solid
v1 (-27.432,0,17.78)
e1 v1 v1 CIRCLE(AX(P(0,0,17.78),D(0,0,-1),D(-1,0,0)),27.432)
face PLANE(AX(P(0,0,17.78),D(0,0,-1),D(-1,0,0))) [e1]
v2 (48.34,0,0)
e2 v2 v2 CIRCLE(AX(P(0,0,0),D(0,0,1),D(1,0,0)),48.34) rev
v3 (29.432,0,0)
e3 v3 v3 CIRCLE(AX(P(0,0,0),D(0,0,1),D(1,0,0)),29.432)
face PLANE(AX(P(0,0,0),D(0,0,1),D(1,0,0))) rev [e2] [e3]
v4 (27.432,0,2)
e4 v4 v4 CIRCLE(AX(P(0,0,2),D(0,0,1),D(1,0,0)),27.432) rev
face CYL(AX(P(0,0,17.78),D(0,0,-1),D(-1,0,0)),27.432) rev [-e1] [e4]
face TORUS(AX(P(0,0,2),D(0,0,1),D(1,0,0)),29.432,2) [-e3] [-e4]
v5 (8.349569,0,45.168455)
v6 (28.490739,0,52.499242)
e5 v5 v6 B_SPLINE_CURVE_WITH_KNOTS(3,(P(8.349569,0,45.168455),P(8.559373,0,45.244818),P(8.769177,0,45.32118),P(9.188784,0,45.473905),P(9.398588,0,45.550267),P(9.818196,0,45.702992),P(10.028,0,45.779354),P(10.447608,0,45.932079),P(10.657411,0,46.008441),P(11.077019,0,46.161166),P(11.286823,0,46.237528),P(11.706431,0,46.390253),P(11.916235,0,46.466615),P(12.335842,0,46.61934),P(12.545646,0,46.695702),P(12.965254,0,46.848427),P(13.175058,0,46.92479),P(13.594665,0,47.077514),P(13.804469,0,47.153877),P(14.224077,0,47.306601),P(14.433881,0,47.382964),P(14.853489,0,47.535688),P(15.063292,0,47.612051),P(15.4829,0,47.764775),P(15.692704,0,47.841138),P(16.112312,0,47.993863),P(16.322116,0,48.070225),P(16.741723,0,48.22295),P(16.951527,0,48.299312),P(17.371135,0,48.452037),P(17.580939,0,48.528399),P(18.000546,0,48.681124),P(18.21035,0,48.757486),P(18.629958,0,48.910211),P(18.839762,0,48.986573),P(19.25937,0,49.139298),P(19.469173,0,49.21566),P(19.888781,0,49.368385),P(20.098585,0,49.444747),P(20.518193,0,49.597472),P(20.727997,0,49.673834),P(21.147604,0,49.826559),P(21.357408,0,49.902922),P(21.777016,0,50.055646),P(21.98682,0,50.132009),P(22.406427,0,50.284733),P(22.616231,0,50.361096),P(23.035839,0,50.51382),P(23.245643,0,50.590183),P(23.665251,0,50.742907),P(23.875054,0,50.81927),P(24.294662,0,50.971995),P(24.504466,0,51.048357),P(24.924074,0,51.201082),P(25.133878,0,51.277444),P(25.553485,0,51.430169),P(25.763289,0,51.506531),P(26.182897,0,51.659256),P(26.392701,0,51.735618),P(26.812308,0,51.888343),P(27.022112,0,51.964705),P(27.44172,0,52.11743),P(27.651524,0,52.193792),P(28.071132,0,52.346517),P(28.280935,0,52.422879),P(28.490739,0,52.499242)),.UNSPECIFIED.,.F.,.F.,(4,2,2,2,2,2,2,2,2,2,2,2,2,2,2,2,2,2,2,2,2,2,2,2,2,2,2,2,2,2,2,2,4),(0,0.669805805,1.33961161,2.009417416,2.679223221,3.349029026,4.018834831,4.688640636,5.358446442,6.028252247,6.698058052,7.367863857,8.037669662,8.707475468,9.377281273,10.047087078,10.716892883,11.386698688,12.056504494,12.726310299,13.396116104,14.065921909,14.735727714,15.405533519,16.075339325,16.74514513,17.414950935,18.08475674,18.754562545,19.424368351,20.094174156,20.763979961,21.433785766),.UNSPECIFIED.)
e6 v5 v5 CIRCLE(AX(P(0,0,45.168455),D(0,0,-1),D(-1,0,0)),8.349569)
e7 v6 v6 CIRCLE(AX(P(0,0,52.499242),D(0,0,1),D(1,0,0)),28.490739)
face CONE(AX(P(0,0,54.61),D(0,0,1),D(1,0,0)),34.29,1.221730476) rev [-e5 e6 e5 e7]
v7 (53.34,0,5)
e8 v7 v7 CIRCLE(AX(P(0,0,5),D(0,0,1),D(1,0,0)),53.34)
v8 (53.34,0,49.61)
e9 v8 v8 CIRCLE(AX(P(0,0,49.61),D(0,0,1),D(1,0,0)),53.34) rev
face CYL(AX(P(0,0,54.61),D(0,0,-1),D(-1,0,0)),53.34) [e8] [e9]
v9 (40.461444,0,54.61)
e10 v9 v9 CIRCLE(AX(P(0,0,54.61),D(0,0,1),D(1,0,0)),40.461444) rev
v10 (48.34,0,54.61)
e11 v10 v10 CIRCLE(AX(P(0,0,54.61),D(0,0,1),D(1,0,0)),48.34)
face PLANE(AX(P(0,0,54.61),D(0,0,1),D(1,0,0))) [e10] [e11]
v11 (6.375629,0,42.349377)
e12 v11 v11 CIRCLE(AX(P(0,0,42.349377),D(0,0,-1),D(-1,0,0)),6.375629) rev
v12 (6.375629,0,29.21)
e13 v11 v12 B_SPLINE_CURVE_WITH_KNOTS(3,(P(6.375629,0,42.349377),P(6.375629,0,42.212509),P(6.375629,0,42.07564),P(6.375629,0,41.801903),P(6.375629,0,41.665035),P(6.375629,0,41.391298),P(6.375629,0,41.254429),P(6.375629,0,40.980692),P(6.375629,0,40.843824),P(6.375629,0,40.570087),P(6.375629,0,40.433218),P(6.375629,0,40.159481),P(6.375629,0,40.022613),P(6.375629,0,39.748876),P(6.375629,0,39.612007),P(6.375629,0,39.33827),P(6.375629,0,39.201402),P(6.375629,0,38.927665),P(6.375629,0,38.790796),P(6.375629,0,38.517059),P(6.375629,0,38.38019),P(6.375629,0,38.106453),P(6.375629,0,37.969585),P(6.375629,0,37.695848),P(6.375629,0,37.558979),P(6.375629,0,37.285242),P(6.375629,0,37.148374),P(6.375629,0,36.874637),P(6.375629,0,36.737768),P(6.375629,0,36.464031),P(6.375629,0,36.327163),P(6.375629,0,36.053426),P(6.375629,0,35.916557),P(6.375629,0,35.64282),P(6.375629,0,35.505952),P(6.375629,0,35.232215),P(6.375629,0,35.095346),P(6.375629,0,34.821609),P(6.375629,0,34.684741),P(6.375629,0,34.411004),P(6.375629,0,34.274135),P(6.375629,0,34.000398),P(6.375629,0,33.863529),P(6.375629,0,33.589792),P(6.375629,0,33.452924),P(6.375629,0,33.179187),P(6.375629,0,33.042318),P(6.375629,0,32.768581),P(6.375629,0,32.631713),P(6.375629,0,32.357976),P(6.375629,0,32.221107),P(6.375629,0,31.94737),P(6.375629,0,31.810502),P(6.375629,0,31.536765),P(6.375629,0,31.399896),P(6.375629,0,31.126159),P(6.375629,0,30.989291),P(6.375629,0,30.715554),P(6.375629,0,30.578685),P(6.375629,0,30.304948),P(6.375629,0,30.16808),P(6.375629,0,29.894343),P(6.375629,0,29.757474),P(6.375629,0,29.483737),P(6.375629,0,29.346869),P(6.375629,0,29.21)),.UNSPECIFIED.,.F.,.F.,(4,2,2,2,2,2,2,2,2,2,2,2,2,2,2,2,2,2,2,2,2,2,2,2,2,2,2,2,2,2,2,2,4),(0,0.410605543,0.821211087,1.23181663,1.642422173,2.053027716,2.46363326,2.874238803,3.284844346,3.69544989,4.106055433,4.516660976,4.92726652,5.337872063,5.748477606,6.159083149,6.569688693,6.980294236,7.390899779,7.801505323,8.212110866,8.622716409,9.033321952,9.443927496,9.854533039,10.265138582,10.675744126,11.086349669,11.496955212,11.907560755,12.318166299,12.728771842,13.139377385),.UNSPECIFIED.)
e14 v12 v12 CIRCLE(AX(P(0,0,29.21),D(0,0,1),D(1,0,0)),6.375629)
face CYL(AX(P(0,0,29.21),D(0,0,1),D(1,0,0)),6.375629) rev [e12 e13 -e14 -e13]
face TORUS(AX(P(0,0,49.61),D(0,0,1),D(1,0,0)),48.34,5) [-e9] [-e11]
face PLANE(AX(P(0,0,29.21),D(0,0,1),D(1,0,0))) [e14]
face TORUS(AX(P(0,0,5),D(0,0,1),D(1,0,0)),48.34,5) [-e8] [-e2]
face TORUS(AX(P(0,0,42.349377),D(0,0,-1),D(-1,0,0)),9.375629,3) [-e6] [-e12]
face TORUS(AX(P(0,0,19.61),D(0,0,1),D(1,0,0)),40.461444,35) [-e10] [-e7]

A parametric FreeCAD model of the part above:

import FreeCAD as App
import Part
import Sketcher

V = App.Vector
Q = App.Units.Quantity


def edges_at(feature, points):
    """Names of the edges that pass closest to the given points."""
    edges = feature.Shape.Edges
    near = lambda p: min(range(len(edges)), key=lambda i: edges[i].distToShape(Part.Vertex(*p))[0])
    return sorted({f"Edge{near(p) + 1}" for p in points})


def faces_at(feature, points):
    """Names of the faces that lie closest to the given points."""
    faces = feature.Shape.Faces
    near = lambda p: min(range(len(faces)), key=lambda i: faces[i].distToShape(Part.Vertex(*p))[0])
    return sorted({f"Face{near(p) + 1}" for p in points})

doc = App.newDocument("Part")
body = doc.addObject("PartDesign::Body", "Body")

# Sketch on XY plane
sketch1 = body.newObject("Sketcher::SketchObject", "Sketch")
sketch1.AttachmentSupport = (doc.getObject("XY_Plane"), [""])
sketch1.MapMode = "FlatFace"
sketch1.addGeometry(Part.Circle(V(0, 0, 0), V(0, 0, 1), 53), False)
sketch1.addConstraint(Sketcher.Constraint("Coincident", 0, 3, -1, 1))
sketch1.addConstraint(Sketcher.Constraint("Diameter", 0, Q("4.2 in")))
pad1 = body.newObject("PartDesign::Pad", "Pad")
pad1.Profile = sketch1
pad1.Length = Q("2.15 in")
doc.recompute()

fillet = body.newObject("PartDesign::Fillet", "Fillet")
fillet.Base = (pad1, edges_at(pad1, [(-53.34, 0, 0), (-53.34, 0, 54.61)]))
fillet.Radius = 5

# Sketch on XY plane
sketch2 = body.newObject("Sketcher::SketchObject", "Sketch001")
sketch2.AttachmentSupport = (doc.getObject("XY_Plane"), [""])
sketch2.MapMode = "FlatFace"
sketch2.addGeometry(Part.Circle(V(0, 0, 0), V(0, 0, 1), 27), False)
sketch2.addConstraint(Sketcher.Constraint("Coincident", 0, 3, -1, 1))
sketch2.addConstraint(Sketcher.Constraint("Diameter", 0, Q("2.16 in")))
pocket1 = body.newObject("PartDesign::Pocket", "Pocket")
pocket1.Profile = sketch2
pocket1.Length = Q("0.7 in")
pocket1.Reversed = True
doc.recompute()

fillet2 = body.newObject("PartDesign::Fillet", "Fillet001")
fillet2.Base = (pocket1, edges_at(pocket1, [(27.432, 0, 0)]))
fillet2.Radius = 2
body2 = doc.addObject("PartDesign::Body", "Body001")

# Sketch on XY plane
sketch3 = body2.newObject("Sketcher::SketchObject", "Sketch002")
sketch3.AttachmentSupport = (doc.getObject("XY_Plane001"), [""])
sketch3.MapMode = "FlatFace"
sketch3.AttachmentOffset = App.Placement(V(0, 0, 2.15 * 25.4), App.Rotation())
sketch3.addGeometry(Part.Circle(V(0, 0, 0), V(0, 0, 1), 34), False)
sketch3.addConstraint(Sketcher.Constraint("Coincident", 0, 3, -1, 1))
sketch3.addConstraint(Sketcher.Constraint("Diameter", 0, Q("2.7 in")))
pad2 = body2.newObject("PartDesign::Pad", "Pad001")
pad2.Profile = sketch3
pad2.Length = Q("0.4 in")
pad2.Reversed = True
doc.recompute()

datumplane = body2.newObject("PartDesign::Plane", "DatumPlane")
datumplane.AttachmentSupport = (doc.getObject("XY_Plane001"), [""])
datumplane.MapMode = "FlatFace"
datumplane.AttachmentOffset = App.Placement(V(0, 0, 2.15 * 25.4), App.Rotation())
draft = body2.newObject("PartDesign::Draft", "Draft")
draft.Base = (pad2, faces_at(pad2, [(-34.29, 0, 49.53)]))
draft.NeutralPlane = (datumplane, [""])
draft.Angle = 70
draft.Reversed = True
doc.recompute()

boolean = body.newObject("PartDesign::Boolean", "Boolean")
boolean.Type = "Cut"
boolean.addObjects([body2])
doc.recompute()

fillet3 = body.newObject("PartDesign::Fillet", "Fillet002")
fillet3.Base = (boolean, edges_at(boolean, [(-34.29, 0, 54.61)]))
fillet3.Radius = 35

# Sketch on XY plane
sketch4 = body.newObject("Sketcher::SketchObject", "Sketch003")
sketch4.AttachmentSupport = (doc.getObject("XY_Plane"), [""])
sketch4.MapMode = "FlatFace"
sketch4.AttachmentOffset = App.Placement(V(0, 0, 1.75 * 25.4), App.Rotation())
sketch4.addGeometry(Part.Circle(V(0, 0, 0), V(0, 0, 1), 6), False)
sketch4.addConstraint(Sketcher.Constraint("Coincident", 0, 3, -1, 1))
sketch4.addConstraint(Sketcher.Constraint("Diameter", 0, 12.751259))
pocket2 = body.newObject("PartDesign::Pocket", "Pocket001")
pocket2.Profile = sketch4
pocket2.Length = Q("0.6 in")
doc.recompute()

fillet4 = body.newObject("PartDesign::Fillet", "Fillet003")
fillet4.Base = (pocket2, edges_at(pocket2, [(-6.376, 0, 44.45)]))
fillet4.Radius = 3

doc.recompute()
